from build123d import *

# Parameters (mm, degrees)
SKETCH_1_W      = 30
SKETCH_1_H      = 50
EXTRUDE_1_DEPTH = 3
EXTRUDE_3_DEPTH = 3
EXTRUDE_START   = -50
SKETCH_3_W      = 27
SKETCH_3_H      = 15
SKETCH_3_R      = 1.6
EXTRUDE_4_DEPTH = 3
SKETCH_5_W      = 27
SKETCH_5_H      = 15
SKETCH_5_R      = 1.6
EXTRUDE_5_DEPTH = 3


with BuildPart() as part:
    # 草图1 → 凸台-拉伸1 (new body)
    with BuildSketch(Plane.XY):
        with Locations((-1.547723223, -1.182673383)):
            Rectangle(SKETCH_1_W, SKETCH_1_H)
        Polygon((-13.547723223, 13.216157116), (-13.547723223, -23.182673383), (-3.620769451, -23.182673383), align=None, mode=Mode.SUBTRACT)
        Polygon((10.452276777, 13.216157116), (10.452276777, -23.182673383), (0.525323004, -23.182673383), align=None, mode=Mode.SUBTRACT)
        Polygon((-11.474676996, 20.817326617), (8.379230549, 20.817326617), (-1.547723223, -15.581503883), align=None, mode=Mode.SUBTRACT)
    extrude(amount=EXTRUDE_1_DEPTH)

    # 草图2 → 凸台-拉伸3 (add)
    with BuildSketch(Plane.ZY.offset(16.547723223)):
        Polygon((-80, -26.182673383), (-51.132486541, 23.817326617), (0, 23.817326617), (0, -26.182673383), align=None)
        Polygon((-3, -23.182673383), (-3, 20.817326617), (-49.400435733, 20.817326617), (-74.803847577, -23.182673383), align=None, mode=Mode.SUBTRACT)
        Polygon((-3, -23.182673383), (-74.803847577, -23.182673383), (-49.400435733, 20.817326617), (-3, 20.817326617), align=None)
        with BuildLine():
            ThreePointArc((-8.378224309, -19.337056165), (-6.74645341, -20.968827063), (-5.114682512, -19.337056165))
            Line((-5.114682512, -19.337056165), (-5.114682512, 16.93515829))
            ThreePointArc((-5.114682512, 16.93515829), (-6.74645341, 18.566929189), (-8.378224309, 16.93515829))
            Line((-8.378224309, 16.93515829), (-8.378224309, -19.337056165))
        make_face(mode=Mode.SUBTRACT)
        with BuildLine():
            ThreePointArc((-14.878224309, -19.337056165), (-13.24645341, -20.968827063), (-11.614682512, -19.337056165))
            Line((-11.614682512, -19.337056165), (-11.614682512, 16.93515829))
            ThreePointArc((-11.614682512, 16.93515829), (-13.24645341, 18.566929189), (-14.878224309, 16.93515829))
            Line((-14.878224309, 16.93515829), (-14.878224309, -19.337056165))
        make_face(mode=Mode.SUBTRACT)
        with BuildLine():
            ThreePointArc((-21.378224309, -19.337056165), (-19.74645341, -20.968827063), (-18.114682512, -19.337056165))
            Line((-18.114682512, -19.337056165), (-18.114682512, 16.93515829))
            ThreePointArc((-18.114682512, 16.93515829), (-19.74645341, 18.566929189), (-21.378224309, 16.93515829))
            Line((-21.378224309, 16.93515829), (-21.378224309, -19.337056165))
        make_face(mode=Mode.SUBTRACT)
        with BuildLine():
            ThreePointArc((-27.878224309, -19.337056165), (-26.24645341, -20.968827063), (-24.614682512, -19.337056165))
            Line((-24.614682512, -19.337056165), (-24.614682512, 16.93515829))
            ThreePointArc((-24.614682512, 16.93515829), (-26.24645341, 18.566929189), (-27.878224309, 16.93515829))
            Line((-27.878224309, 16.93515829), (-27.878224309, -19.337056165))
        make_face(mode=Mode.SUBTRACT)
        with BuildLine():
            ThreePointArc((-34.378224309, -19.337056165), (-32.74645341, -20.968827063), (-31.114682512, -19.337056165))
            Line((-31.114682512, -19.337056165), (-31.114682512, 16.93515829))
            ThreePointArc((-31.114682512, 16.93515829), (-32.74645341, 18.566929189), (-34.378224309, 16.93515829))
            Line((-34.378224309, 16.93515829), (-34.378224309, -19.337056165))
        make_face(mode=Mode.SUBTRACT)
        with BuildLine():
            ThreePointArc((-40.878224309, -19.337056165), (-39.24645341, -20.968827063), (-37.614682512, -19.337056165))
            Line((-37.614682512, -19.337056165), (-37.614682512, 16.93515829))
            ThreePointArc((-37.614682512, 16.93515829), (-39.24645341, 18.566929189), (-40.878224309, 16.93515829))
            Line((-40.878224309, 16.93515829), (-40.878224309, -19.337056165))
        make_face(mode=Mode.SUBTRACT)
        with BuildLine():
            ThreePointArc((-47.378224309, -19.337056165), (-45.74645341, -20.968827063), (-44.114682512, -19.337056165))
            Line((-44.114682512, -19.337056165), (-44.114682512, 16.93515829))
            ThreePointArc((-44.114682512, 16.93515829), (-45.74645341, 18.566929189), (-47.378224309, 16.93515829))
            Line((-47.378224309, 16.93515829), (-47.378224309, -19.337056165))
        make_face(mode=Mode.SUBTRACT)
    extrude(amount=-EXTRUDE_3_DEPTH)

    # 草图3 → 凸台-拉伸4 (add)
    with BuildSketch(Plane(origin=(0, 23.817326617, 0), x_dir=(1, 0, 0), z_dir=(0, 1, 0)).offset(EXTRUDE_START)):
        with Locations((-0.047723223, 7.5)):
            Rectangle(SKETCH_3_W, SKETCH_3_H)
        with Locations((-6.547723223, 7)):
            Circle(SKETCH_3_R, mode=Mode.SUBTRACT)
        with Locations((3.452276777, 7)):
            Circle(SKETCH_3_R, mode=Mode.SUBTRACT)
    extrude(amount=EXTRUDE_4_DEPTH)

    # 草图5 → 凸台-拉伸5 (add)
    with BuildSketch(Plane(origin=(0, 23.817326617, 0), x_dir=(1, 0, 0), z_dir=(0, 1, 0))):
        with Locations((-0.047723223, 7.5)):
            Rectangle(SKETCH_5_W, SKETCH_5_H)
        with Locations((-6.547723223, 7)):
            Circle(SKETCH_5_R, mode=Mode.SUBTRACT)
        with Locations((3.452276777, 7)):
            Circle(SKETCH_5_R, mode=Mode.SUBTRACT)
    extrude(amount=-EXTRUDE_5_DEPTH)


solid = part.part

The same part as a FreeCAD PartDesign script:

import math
import FreeCAD as App
import Part
import Sketcher
Q = App.Units.Quantity

doc = App.newDocument("Part")
body = doc.addObject("PartDesign::Body", "Body")

# Sketch on XY plane
sketch1 = doc.addObject("Sketcher::SketchObject", "Sketch")
body.addObject(sketch1)
sketch1.AttachmentSupport = (doc.XY_Plane, [""])
sketch1.MapMode = "FlatFace"
sketch1.addGeometry([
    Part.LineSegment(App.Vector(-17, 24, 0), App.Vector(-17, -26, 0)),  # 0
    Part.LineSegment(App.Vector(-17, -26, 0), App.Vector(13, -26, 0)),  # 1
    Part.LineSegment(App.Vector(13, -26, 0), App.Vector(13, 24, 0)),  # 2
    Part.LineSegment(App.Vector(13, 24, 0), App.Vector(-17, 24, 0)),  # 3
    Part.LineSegment(App.Vector(-14, -23, 0), App.Vector(-14, 13, 0)),  # 4
    Part.LineSegment(App.Vector(-14, 13, 0), App.Vector(-4, -23, 0)),  # 5
    Part.LineSegment(App.Vector(-4, -23, 0), App.Vector(-14, -23, 0)),  # 6
    Part.LineSegment(App.Vector(1, -23, 0), App.Vector(10, 13, 0)),  # 7
    Part.LineSegment(App.Vector(10, 13, 0), App.Vector(10, -23, 0)),  # 8
    Part.LineSegment(App.Vector(10, -23, 0), App.Vector(1, -23, 0)),  # 9
    Part.LineSegment(App.Vector(-2, -16, 0), App.Vector(-11, 21, 0)),  # 10
    Part.LineSegment(App.Vector(-11, 21, 0), App.Vector(8, 21, 0)),  # 11
    Part.LineSegment(App.Vector(8, 21, 0), App.Vector(-2, -16, 0)),  # 12
], False)
sketch1.addConstraint([
    Sketcher.Constraint("Coincident", 0, 2, 1, 1),
    Sketcher.Constraint("Coincident", 1, 2, 2, 1),
    Sketcher.Constraint("Coincident", 2, 2, 3, 1),
    Sketcher.Constraint("Coincident", 3, 2, 0, 1),
    Sketcher.Constraint("Coincident", 4, 2, 5, 1),
    Sketcher.Constraint("Coincident", 5, 2, 6, 1),
    Sketcher.Constraint("Coincident", 6, 2, 4, 1),
    Sketcher.Constraint("Coincident", 7, 2, 8, 1),
    Sketcher.Constraint("Coincident", 8, 2, 9, 1),
    Sketcher.Constraint("Coincident", 9, 2, 7, 1),
    Sketcher.Constraint("Coincident", 10, 2, 11, 1),
    Sketcher.Constraint("Coincident", 11, 2, 12, 1),
    Sketcher.Constraint("Coincident", 12, 2, 10, 1),
    Sketcher.Constraint("Vertical", 0),
    Sketcher.Constraint("Horizontal", 1),
    Sketcher.Constraint("Vertical", 2),
    Sketcher.Constraint("Horizontal", 3),
    Sketcher.Constraint("Vertical", 4),
    Sketcher.Constraint("Horizontal", 6),
    Sketcher.Constraint("Vertical", 8),
    Sketcher.Constraint("Horizontal", 9),
    Sketcher.Constraint("Horizontal", 11),
    Sketcher.Constraint("Parallel", 5, 10),
    Sketcher.Constraint("Parallel", 7, 12),
    Sketcher.Constraint("Horizontal", 4, 2, 7, 2),
    Sketcher.Constraint("Horizontal", 6, 2, 8, 2),
    Sketcher.Constraint("Equal", 6, 9),
    Sketcher.Constraint("Equal", 7, 10),
    Sketcher.Constraint("DistanceX", 1, 1, 1, 2, Q("30 mm")),
    Sketcher.Constraint("DistanceY", 0, 2, 0, 1, Q("50 mm")),
    Sketcher.Constraint("DistanceX", 3, 2, 4, 2, Q("3 mm")),
    Sketcher.Constraint("DistanceY", 0, 2, 5, 2, Q("3 mm")),
    Sketcher.Constraint("DistanceX", 7, 2, 2, 2, Q("3 mm")),
    Sketcher.Constraint("DistanceY", 10, 2, 3, 2, Q("3 mm")),
    Sketcher.Constraint("DistanceX", 6, 2, 12, 2, Q("12 mm")),
    Sketcher.Constraint("DistanceY", 4, 1, 4, 2, Q("36.39883 mm")),
    Sketcher.Constraint("Distance", 5, Q("37.728229 mm")),
    Sketcher.Constraint("DistanceX", 5, 2, -1, 1, Q("3.620769 mm")),
    Sketcher.Constraint("DistanceY", 0, 2, -1, 1, Q("26.182673 mm")),
])
pad1 = doc.addObject("PartDesign::Pad", "Pad")
body.addObject(pad1)
pad1.Profile = sketch1
pad1.Length = 3

# Sketch on YZ plane
sketch2 = doc.addObject("Sketcher::SketchObject", "Sketch001")
body.addObject(sketch2)
sketch2.AttachmentSupport = (doc.YZ_Plane, [""])
sketch2.MapMode = "FlatFace"
sketch2.AttachmentOffset = App.Placement(App.Vector(0, 0, -16.547723), App.Rotation())
sketch2.addGeometry([
    Part.LineSegment(App.Vector(23.8, -51.1, 0), App.Vector(-26.2, -80, 0)),  # 0
    Part.LineSegment(App.Vector(-26.2, -80, 0), App.Vector(-26.2, 0, 0)),  # 1
    Part.LineSegment(App.Vector(-26.2, 0, 0), App.Vector(23.8, 0, 0)),  # 2
    Part.LineSegment(App.Vector(23.8, 0, 0), App.Vector(23.8, -51.1, 0)),  # 3
    Part.LineSegment(App.Vector(-19.3, -8.4, 0), App.Vector(16.9, -8.4, 0)),  # 4
    Part.ArcOfCircle(Part.Circle(App.Vector(16.9, -6.7, 0), App.Vector(0, 0, 1), 1.6), math.radians(-90), math.radians(90)),  # 5
    Part.LineSegment(App.Vector(16.9, -5.1, 0), App.Vector(-19.3, -5.1, 0)),  # 6
    Part.ArcOfCircle(Part.Circle(App.Vector(-19.3, -6.7, 0), App.Vector(0, 0, 1), 1.6), math.radians(90), math.radians(270)),  # 7
    Part.LineSegment(App.Vector(-19.3, -14.9, 0), App.Vector(16.9, -14.9, 0)),  # 8
    Part.ArcOfCircle(Part.Circle(App.Vector(16.9, -13.2, 0), App.Vector(0, 0, 1), 1.6), math.radians(-90), math.radians(90)),  # 9
    Part.LineSegment(App.Vector(16.9, -11.6, 0), App.Vector(-19.3, -11.6, 0)),  # 10
    Part.ArcOfCircle(Part.Circle(App.Vector(-19.3, -13.2, 0), App.Vector(0, 0, 1), 1.6), math.radians(90), math.radians(270)),  # 11
    Part.LineSegment(App.Vector(-19.3, -21.4, 0), App.Vector(16.9, -21.4, 0)),  # 12
    Part.ArcOfCircle(Part.Circle(App.Vector(16.9, -19.7, 0), App.Vector(0, 0, 1), 1.6), math.radians(-90), math.radians(90)),  # 13
    Part.LineSegment(App.Vector(16.9, -18.1, 0), App.Vector(-19.3, -18.1, 0)),  # 14
    Part.ArcOfCircle(Part.Circle(App.Vector(-19.3, -19.7, 0), App.Vector(0, 0, 1), 1.6), math.radians(90), math.radians(270)),  # 15
    Part.LineSegment(App.Vector(-19.3, -27.9, 0), App.Vector(16.9, -27.9, 0)),  # 16
    Part.ArcOfCircle(Part.Circle(App.Vector(16.9, -26.2, 0), App.Vector(0, 0, 1), 1.6), math.radians(-90), math.radians(90)),  # 17
    Part.LineSegment(App.Vector(16.9, -24.6, 0), App.Vector(-19.3, -24.6, 0)),  # 18
    Part.ArcOfCircle(Part.Circle(App.Vector(-19.3, -26.2, 0), App.Vector(0, 0, 1), 1.6), math.radians(90), math.radians(270)),  # 19
    Part.LineSegment(App.Vector(-19.3, -34.4, 0), App.Vector(16.9, -34.4, 0)),  # 20
    Part.ArcOfCircle(Part.Circle(App.Vector(16.9, -32.7, 0), App.Vector(0, 0, 1), 1.6), math.radians(-90), math.radians(90)),  # 21
    Part.LineSegment(App.Vector(16.9, -31.1, 0), App.Vector(-19.3, -31.1, 0)),  # 22
    Part.ArcOfCircle(Part.Circle(App.Vector(-19.3, -32.7, 0), App.Vector(0, 0, 1), 1.6), math.radians(90), math.radians(270)),  # 23
    Part.LineSegment(App.Vector(-19.3, -40.9, 0), App.Vector(16.9, -40.9, 0)),  # 24
    Part.ArcOfCircle(Part.Circle(App.Vector(16.9, -39.2, 0), App.Vector(0, 0, 1), 1.6), math.radians(-90), math.radians(90)),  # 25
    Part.LineSegment(App.Vector(16.9, -37.6, 0), App.Vector(-19.3, -37.6, 0)),  # 26
    Part.ArcOfCircle(Part.Circle(App.Vector(-19.3, -39.2, 0), App.Vector(0, 0, 1), 1.6), math.radians(90), math.radians(270)),  # 27
    Part.LineSegment(App.Vector(-19.3, -47.4, 0), App.Vector(16.9, -47.4, 0)),  # 28
    Part.ArcOfCircle(Part.Circle(App.Vector(16.9, -45.7, 0), App.Vector(0, 0, 1), 1.6), math.radians(-90), math.radians(90)),  # 29
    Part.LineSegment(App.Vector(16.9, -44.1, 0), App.Vector(-19.3, -44.1, 0)),  # 30
    Part.ArcOfCircle(Part.Circle(App.Vector(-19.3, -45.7, 0), App.Vector(0, 0, 1), 1.6), math.radians(90), math.radians(270)),  # 31
], False)
sketch2.addConstraint([
    Sketcher.Constraint("Coincident", 0, 2, 1, 1),
    Sketcher.Constraint("Coincident", 1, 2, 2, 1),
    Sketcher.Constraint("Coincident", 2, 2, 3, 1),
    Sketcher.Constraint("Coincident", 3, 2, 0, 1),
    Sketcher.Constraint("Tangent", 4, 2, 5, 1),
    Sketcher.Constraint("Tangent", 5, 2, 6, 1),
    Sketcher.Constraint("Tangent", 6, 2, 7, 1),
    Sketcher.Constraint("Tangent", 7, 2, 4, 1),
    Sketcher.Constraint("Tangent", 8, 2, 9, 1),
    Sketcher.Constraint("Tangent", 9, 2, 10, 1),
    Sketcher.Constraint("Tangent", 10, 2, 11, 1),
    Sketcher.Constraint("Tangent", 11, 2, 8, 1),
    Sketcher.Constraint("Tangent", 12, 2, 13, 1),
    Sketcher.Constraint("Tangent", 13, 2, 14, 1),
    Sketcher.Constraint("Tangent", 14, 2, 15, 1),
    Sketcher.Constraint("Tangent", 15, 2, 12, 1),
    Sketcher.Constraint("Tangent", 16, 2, 17, 1),
    Sketcher.Constraint("Tangent", 17, 2, 18, 1),
    Sketcher.Constraint("Tangent", 18, 2, 19, 1),
    Sketcher.Constraint("Tangent", 19, 2, 16, 1),
    Sketcher.Constraint("Tangent", 20, 2, 21, 1),
    Sketcher.Constraint("Tangent", 21, 2, 22, 1),
    Sketcher.Constraint("Tangent", 22, 2, 23, 1),
    Sketcher.Constraint("Tangent", 23, 2, 20, 1),
    Sketcher.Constraint("Tangent", 24, 2, 25, 1),
    Sketcher.Constraint("Tangent", 25, 2, 26, 1),
    Sketcher.Constraint("Tangent", 26, 2, 27, 1),
    Sketcher.Constraint("Tangent", 27, 2, 24, 1),
    Sketcher.Constraint("Tangent", 28, 2, 29, 1),
    Sketcher.Constraint("Tangent", 29, 2, 30, 1),
    Sketcher.Constraint("Tangent", 30, 2, 31, 1),
    Sketcher.Constraint("Tangent", 31, 2, 28, 1),
    Sketcher.Constraint("Vertical", 1),
    Sketcher.Constraint("Horizontal", 2),
    Sketcher.Constraint("Vertical", 3),
    Sketcher.Constraint("Horizontal", 4),
    Sketcher.Constraint("Horizontal", 6),
    Sketcher.Constraint("Horizontal", 8),
    Sketcher.Constraint("Horizontal", 10),
    Sketcher.Constraint("Horizontal", 12),
    Sketcher.Constraint("Horizontal", 14),
    Sketcher.Constraint("Horizontal", 16),
    Sketcher.Constraint("Horizontal", 18),
    Sketcher.Constraint("Horizontal", 20),
    Sketcher.Constraint("Horizontal", 22),
    Sketcher.Constraint("Horizontal", 24),
    Sketcher.Constraint("Horizontal", 26),
    Sketcher.Constraint("Horizontal", 28),
    Sketcher.Constraint("Horizontal", 30),
    Sketcher.Constraint("Equal", 7, 9),
    Sketcher.Constraint("Equal", 11, 13),
    Sketcher.Constraint("Equal", 15, 17),
    Sketcher.Constraint("Equal", 19, 21),
    Sketcher.Constraint("Equal", 23, 25),
    Sketcher.Constraint("Equal", 27, 29),
    Sketcher.Constraint("PointOnObject", 1, 2, -1),
    Sketcher.Constraint("Vertical", 5, 3, 9, 3),
    Sketcher.Constraint("Vertical", 7, 3, 11, 3),
    Sketcher.Constraint("Vertical", 9, 3, 13, 3),
    Sketcher.Constraint("Vertical", 11, 3, 15, 3),
    Sketcher.Constraint("Vertical", 13, 3, 17, 3),
    Sketcher.Constraint("Vertical", 15, 3, 19, 3),
    Sketcher.Constraint("Vertical", 17, 3, 21, 3),
    Sketcher.Constraint("Vertical", 19, 3, 23, 3),
    Sketcher.Constraint("Vertical", 21, 3, 25, 3),
    Sketcher.Constraint("Vertical", 23, 3, 27, 3),
    Sketcher.Constraint("Vertical", 25, 3, 29, 3),
    Sketcher.Constraint("Vertical", 27, 3, 31, 3),
    Sketcher.Constraint("DistanceX", 2, 1, 2, 2, Q("50 mm")),
    Sketcher.Constraint("DistanceY", 1, 1, 1, 2, Q("80 mm")),
    Sketcher.Constraint("Angle", 0, Q("-150 deg")),
    Sketcher.Constraint("DistanceY", 13, 3, 5, 3, Q("13 mm")),
    Sketcher.Constraint("DistanceY", 17, 3, 9, 3, Q("13 mm")),
    Sketcher.Constraint("DistanceY", 21, 3, 13, 3, Q("13 mm")),
    Sketcher.Constraint("DistanceY", 25, 3, 17, 3, Q("13 mm")),
    Sketcher.Constraint("DistanceY", 29, 3, 21, 3, Q("13 mm")),
    Sketcher.Constraint("DistanceY", 9, 3, 5, 3, Q("6.5 mm")),
    Sketcher.Constraint("Radius", 5, Q("1.631771 mm")),
    Sketcher.Constraint("DistanceX", 4, 1, 4, 2, Q("36.272214 mm")),
    Sketcher.Constraint("DistanceX", -1, 1, 5, 3, Q("16.935158 mm")),
    Sketcher.Constraint("DistanceX", 0, 2, 29, 3, Q("43.117832 mm")),
    Sketcher.Constraint("DistanceY", 5, 3, -1, 1, Q("6.746453 mm")),
])
pad2 = doc.addObject("PartDesign::Pad", "Pad001")
body.addObject(pad2)
pad2.Profile = sketch2
pad2.Length = 3

# Sketch on XZ plane
sketch3 = doc.addObject("Sketcher::SketchObject", "Sketch002")
body.addObject(sketch3)
sketch3.AttachmentSupport = (doc.XZ_Plane, [""])
sketch3.MapMode = "FlatFace"
sketch3.AttachmentOffset = App.Placement(App.Vector(0, 0, 26.182673), App.Rotation())
sketch3.addGeometry([
    Part.LineSegment(App.Vector(-13.5, -15, 0), App.Vector(-13.5, 0, 0)),  # 0
    Part.LineSegment(App.Vector(-13.5, 0, 0), App.Vector(13.5, 0, 0)),  # 1
    Part.LineSegment(App.Vector(13.5, 0, 0), App.Vector(13.5, -15, 0)),  # 2
    Part.LineSegment(App.Vector(13.5, -15, 0), App.Vector(-13.5, -15, 0)),  # 3
    Part.Circle(App.Vector(-6.5, -7, 0), App.Vector(0, 0, 1), 1.6),  # 4
    Part.Circle(App.Vector(3.5, -7, 0), App.Vector(0, 0, 1), 1.6),  # 5
], False)
sketch3.addConstraint([
    Sketcher.Constraint("Coincident", 0, 2, 1, 1),
    Sketcher.Constraint("Coincident", 1, 2, 2, 1),
    Sketcher.Constraint("Coincident", 2, 2, 3, 1),
    Sketcher.Constraint("Coincident", 3, 2, 0, 1),
    Sketcher.Constraint("Vertical", 0),
    Sketcher.Constraint("Horizontal", 1),
    Sketcher.Constraint("Vertical", 2),
    Sketcher.Constraint("Horizontal", 3),
    Sketcher.Constraint("Equal", 4, 5),
    Sketcher.Constraint("PointOnObject", 0, 2, -1),
    Sketcher.Constraint("Horizontal", 4, 3, 5, 3),
    Sketcher.Constraint("Diameter", 4, Q("3.2 mm")),
    Sketcher.Constraint("DistanceX", 1, 1, 1, 2, Q("27 mm")),
    Sketcher.Constraint("DistanceY", 0, 1, 0, 2, Q("15 mm")),
    Sketcher.Constraint("DistanceY", 4, 3, -1, 1, Q("7 mm")),
    Sketcher.Constraint("DistanceX", 4, 3, 5, 3, Q("10 mm")),
    Sketcher.Constraint("DistanceX", 0, 2, 4, 3, Q("7 mm")),
    Sketcher.Constraint("DistanceX", 4, 3, -1, 1, Q("6.547723 mm")),
])
pad3 = doc.addObject("PartDesign::Pad", "Pad002")
body.addObject(pad3)
pad3.Profile = sketch3
pad3.Length = 3
pad3.Reversed = True

# Sketch on XZ plane
sketch4 = doc.addObject("Sketcher::SketchObject", "Sketch003")
body.addObject(sketch4)
sketch4.AttachmentSupport = (doc.XZ_Plane, [""])
sketch4.MapMode = "FlatFace"
sketch4.AttachmentOffset = App.Placement(App.Vector(0, 0, -23.817327), App.Rotation())
sketch4.addGeometry([
    Part.LineSegment(App.Vector(-13.5, -15, 0), App.Vector(-13.5, 0, 0)),  # 0
    Part.LineSegment(App.Vector(-13.5, 0, 0), App.Vector(13.5, 0, 0)),  # 1
    Part.LineSegment(App.Vector(13.5, 0, 0), App.Vector(13.5, -15, 0)),  # 2
    Part.LineSegment(App.Vector(13.5, -15, 0), App.Vector(-13.5, -15, 0)),  # 3
    Part.Circle(App.Vector(-6.5, -7, 0), App.Vector(0, 0, 1), 1.6),  # 4
    Part.Circle(App.Vector(3.5, -7, 0), App.Vector(0, 0, 1), 1.6),  # 5
], False)
sketch4.addConstraint([
    Sketcher.Constraint("Coincident", 0, 2, 1, 1),
    Sketcher.Constraint("Coincident", 1, 2, 2, 1),
    Sketcher.Constraint("Coincident", 2, 2, 3, 1),
    Sketcher.Constraint("Coincident", 3, 2, 0, 1),
    Sketcher.Constraint("Vertical", 0),
    Sketcher.Constraint("Horizontal", 1),
    Sketcher.Constraint("Vertical", 2),
    Sketcher.Constraint("Horizontal", 3),
    Sketcher.Constraint("Equal", 4, 5),
    Sketcher.Constraint("PointOnObject", 0, 2, -1),
    Sketcher.Constraint("Horizontal", 4, 3, 5, 3),
    Sketcher.Constraint("Diameter", 4, Q("3.2 mm")),
    Sketcher.Constraint("DistanceX", 1, 1, 1, 2, Q("27 mm")),
    Sketcher.Constraint("DistanceY", 0, 1, 0, 2, Q("15 mm")),
    Sketcher.Constraint("DistanceY", 4, 3, -1, 1, Q("7 mm")),
    Sketcher.Constraint("DistanceX", 4, 3, 5, 3, Q("10 mm")),
    Sketcher.Constraint("DistanceX", 0, 2, 4, 3, Q("7 mm")),
    Sketcher.Constraint("DistanceX", 4, 3, -1, 1, Q("6.547723 mm")),
])
pad4 = doc.addObject("PartDesign::Pad", "Pad003")
body.addObject(pad4)
pad4.Profile = sketch4
pad4.Length = 3

doc.recompute()
